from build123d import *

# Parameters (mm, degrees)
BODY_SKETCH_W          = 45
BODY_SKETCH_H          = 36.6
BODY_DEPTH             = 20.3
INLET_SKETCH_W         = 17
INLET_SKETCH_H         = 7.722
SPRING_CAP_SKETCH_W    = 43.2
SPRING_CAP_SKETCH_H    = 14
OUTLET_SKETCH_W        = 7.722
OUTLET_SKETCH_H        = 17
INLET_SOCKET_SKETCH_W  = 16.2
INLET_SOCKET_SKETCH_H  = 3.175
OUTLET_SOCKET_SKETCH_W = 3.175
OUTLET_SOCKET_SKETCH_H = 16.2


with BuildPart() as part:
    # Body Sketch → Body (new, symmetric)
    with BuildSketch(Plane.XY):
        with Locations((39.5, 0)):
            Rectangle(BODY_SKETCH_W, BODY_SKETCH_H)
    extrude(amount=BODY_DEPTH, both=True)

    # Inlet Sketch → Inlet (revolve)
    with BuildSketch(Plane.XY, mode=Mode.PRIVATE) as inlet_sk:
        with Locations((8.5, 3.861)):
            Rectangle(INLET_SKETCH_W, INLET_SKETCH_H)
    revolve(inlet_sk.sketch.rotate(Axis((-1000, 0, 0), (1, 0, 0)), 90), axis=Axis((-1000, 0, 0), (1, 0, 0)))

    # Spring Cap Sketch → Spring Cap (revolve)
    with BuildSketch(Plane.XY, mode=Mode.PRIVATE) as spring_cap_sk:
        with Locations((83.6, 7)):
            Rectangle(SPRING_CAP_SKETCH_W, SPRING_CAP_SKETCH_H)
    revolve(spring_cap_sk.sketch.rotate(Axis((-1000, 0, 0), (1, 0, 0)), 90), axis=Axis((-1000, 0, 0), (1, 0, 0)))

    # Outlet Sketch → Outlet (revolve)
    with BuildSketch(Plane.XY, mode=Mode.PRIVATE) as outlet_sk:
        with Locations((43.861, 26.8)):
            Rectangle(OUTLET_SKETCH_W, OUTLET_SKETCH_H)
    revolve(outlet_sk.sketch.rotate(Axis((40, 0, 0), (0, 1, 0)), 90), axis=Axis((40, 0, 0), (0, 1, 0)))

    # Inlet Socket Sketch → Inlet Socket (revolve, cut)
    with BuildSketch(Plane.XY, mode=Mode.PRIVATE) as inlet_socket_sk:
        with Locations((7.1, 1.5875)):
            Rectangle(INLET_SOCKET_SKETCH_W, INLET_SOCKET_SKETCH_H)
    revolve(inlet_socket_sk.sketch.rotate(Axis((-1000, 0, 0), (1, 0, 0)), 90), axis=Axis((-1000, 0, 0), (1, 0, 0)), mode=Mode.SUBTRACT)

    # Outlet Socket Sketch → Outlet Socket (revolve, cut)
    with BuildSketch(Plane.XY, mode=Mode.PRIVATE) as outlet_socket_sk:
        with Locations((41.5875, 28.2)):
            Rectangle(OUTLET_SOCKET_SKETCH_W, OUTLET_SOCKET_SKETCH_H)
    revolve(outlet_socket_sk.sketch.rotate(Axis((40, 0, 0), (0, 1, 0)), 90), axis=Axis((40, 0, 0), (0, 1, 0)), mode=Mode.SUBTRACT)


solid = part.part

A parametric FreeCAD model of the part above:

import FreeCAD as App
import Part
import Sketcher

V = App.Vector
Q = App.Units.Quantity


def add_polygon(sketch, points):
    """Adds a closed chain of lines whose ends are joined by coincident constraints."""
    first, n = sketch.GeometryCount, len(points)
    for a, b in zip(points, points[1:] + points[:1]):
        sketch.addGeometry(Part.LineSegment(App.Vector(*a, 0), App.Vector(*b, 0)), False)
    for i in range(n):
        sketch.addConstraint(Sketcher.Constraint("Coincident", first + i, 2, first + (i + 1) % n, 1))

doc = App.newDocument("Part")
body = doc.addObject("PartDesign::Body", "Body")

# Sketch on XY plane
sketch1 = body.newObject("Sketcher::SketchObject", "Sketch")
sketch1.AttachmentSupport = (doc.getObject("XY_Plane"), [""])
sketch1.MapMode = "FlatFace"
add_polygon(sketch1, [(17, 18.3), (17, -18.3), (62, -18.3), (62, 18.3)])  # lines 0-3
sketch1.addConstraint(Sketcher.Constraint("Vertical", 0))
sketch1.addConstraint(Sketcher.Constraint("Horizontal", 1))
sketch1.addConstraint(Sketcher.Constraint("Vertical", 2))
sketch1.addConstraint(Sketcher.Constraint("Horizontal", 3))
sketch1.addConstraint(Sketcher.Constraint("DistanceX", 1, 1, 1, 2, Q("45 mm")))
sketch1.addConstraint(Sketcher.Constraint("DistanceY", 0, 2, 0, 1, Q("36.6 mm")))
sketch1.addConstraint(Sketcher.Constraint("DistanceX", -1, 1, 0, 2, Q("17 mm")))
sketch1.addConstraint(Sketcher.Constraint("DistanceY", 0, 2, -1, 1, Q("18.3 mm")))
pad1 = body.newObject("PartDesign::Pad", "Pad")
pad1.Profile = sketch1
pad1.Length = 40.6
pad1.Midplane = True

# Sketch on XY plane
sketch2 = body.newObject("Sketcher::SketchObject", "Sketch001")
sketch2.AttachmentSupport = (doc.getObject("XY_Plane"), [""])
sketch2.MapMode = "FlatFace"
add_polygon(sketch2, [(0, 7.722), (0, 0), (17, 0), (17, 7.722)])  # lines 0-3
sketch2.addConstraint(Sketcher.Constraint("Vertical", 0))
sketch2.addConstraint(Sketcher.Constraint("Horizontal", 1))
sketch2.addConstraint(Sketcher.Constraint("Vertical", 2))
sketch2.addConstraint(Sketcher.Constraint("Horizontal", 3))
sketch2.addConstraint(Sketcher.Constraint("Coincident", 0, 2, -1, 1))
sketch2.addConstraint(Sketcher.Constraint("DistanceX", 1, 1, 1, 2, Q("17 mm")))
sketch2.addConstraint(Sketcher.Constraint("DistanceY", 0, 2, 0, 1, Q("7.722 mm")))
revolution = body.newObject("PartDesign::Revolution", "Revolution")
revolution.Profile = sketch2
revolution.ReferenceAxis = (sketch2, ["H_Axis"])
revolution.Angle = 360

# Sketch on XY plane
sketch3 = body.newObject("Sketcher::SketchObject", "Sketch002")
sketch3.AttachmentSupport = (doc.getObject("XY_Plane"), [""])
sketch3.MapMode = "FlatFace"
add_polygon(sketch3, [(62, 14), (62, 0), (105.2, 0), (105.2, 14)])  # lines 0-3
sketch3.addConstraint(Sketcher.Constraint("Vertical", 0))
sketch3.addConstraint(Sketcher.Constraint("Horizontal", 1))
sketch3.addConstraint(Sketcher.Constraint("Vertical", 2))
sketch3.addConstraint(Sketcher.Constraint("Horizontal", 3))
sketch3.addConstraint(Sketcher.Constraint("PointOnObject", 0, 2, -1))
sketch3.addConstraint(Sketcher.Constraint("DistanceY", 0, 2, 0, 1, Q("14 mm")))
sketch3.addConstraint(Sketcher.Constraint("DistanceX", 1, 1, 1, 2, Q("43.2 mm")))
sketch3.addConstraint(Sketcher.Constraint("DistanceX", -1, 1, 0, 2, Q("62 mm")))
revolution2 = body.newObject("PartDesign::Revolution", "Revolution001")
revolution2.Profile = sketch3
revolution2.ReferenceAxis = (sketch3, ["H_Axis"])
revolution2.Angle = 360

# Sketch on XY plane
sketch4 = body.newObject("Sketcher::SketchObject", "Sketch003")
sketch4.AttachmentSupport = (doc.getObject("XY_Plane"), [""])
sketch4.MapMode = "FlatFace"
add_polygon(sketch4, [(40, 35.3), (40, 18.3), (47.722, 18.3), (47.722, 35.3)])  # lines 0-3
sketch4.addGeometry(Part.LineSegment(V(40, 18.3, 0), V(40, 35.3, 0)), True)  # axis
sketch4.addConstraint(Sketcher.Constraint("Vertical", 0))
sketch4.addConstraint(Sketcher.Constraint("Horizontal", 1))
sketch4.addConstraint(Sketcher.Constraint("Vertical", 2))
sketch4.addConstraint(Sketcher.Constraint("Horizontal", 3))
sketch4.addConstraint(Sketcher.Constraint("Vertical", 4))
sketch4.addConstraint(Sketcher.Constraint("Coincident", 4, 1, 0, 2))
sketch4.addConstraint(Sketcher.Constraint("Horizontal", 2, 2, 4, 2))
sketch4.addConstraint(Sketcher.Constraint("DistanceY", 0, 2, 0, 1, Q("17 mm")))
sketch4.addConstraint(Sketcher.Constraint("DistanceX", -1, 1, 0, 2, Q("40 mm")))
sketch4.addConstraint(Sketcher.Constraint("DistanceY", -1, 1, 0, 2, Q("18.3 mm")))
sketch4.addConstraint(Sketcher.Constraint("DistanceX", 1, 1, 1, 2, Q("7.722 mm")))
revolution3 = body.newObject("PartDesign::Revolution", "Revolution002")
revolution3.Profile = sketch4
revolution3.ReferenceAxis = (sketch4, ["Axis0"])
revolution3.Angle = 360

# Sketch on XY plane
sketch5 = body.newObject("Sketcher::SketchObject", "Sketch004")
sketch5.AttachmentSupport = (doc.getObject("XY_Plane"), [""])
sketch5.MapMode = "FlatFace"
add_polygon(sketch5, [(-1, 3.175), (-1, 0), (15.2, 0), (15.2, 3.175)])  # lines 0-3
sketch5.addConstraint(Sketcher.Constraint("Vertical", 0))
sketch5.addConstraint(Sketcher.Constraint("Horizontal", 1))
sketch5.addConstraint(Sketcher.Constraint("Vertical", 2))
sketch5.addConstraint(Sketcher.Constraint("Horizontal", 3))
sketch5.addConstraint(Sketcher.Constraint("PointOnObject", 0, 2, -1))
sketch5.addConstraint(Sketcher.Constraint("DistanceX", 1, 1, 1, 2, Q("16.2 mm")))
sketch5.addConstraint(Sketcher.Constraint("DistanceX", 0, 2, -1, 1, Q("1 mm")))
sketch5.addConstraint(Sketcher.Constraint("DistanceY", 0, 2, 0, 1, Q("3.175 mm")))
groove = body.newObject("PartDesign::Groove", "Groove")
groove.Profile = sketch5
groove.ReferenceAxis = (sketch5, ["H_Axis"])
groove.Angle = 360

# Sketch on XY plane
sketch6 = body.newObject("Sketcher::SketchObject", "Sketch005")
sketch6.AttachmentSupport = (doc.getObject("XY_Plane"), [""])
sketch6.MapMode = "FlatFace"
add_polygon(sketch6, [(40, 36.3), (40, 20.1), (43.175, 20.1), (43.175, 36.3)])  # lines 0-3
sketch6.addGeometry(Part.LineSegment(V(40, 20.1, 0), V(40, 36.3, 0)), True)  # axis
sketch6.addConstraint(Sketcher.Constraint("Vertical", 0))
sketch6.addConstraint(Sketcher.Constraint("Horizontal", 1))
sketch6.addConstraint(Sketcher.Constraint("Vertical", 2))
sketch6.addConstraint(Sketcher.Constraint("Horizontal", 3))
sketch6.addConstraint(Sketcher.Constraint("Vertical", 4))
sketch6.addConstraint(Sketcher.Constraint("Coincident", 4, 1, 0, 2))
sketch6.addConstraint(Sketcher.Constraint("Horizontal", 2, 2, 4, 2))
sketch6.addConstraint(Sketcher.Constraint("DistanceY", 0, 2, 0, 1, Q("16.2 mm")))
sketch6.addConstraint(Sketcher.Constraint("DistanceX", -1, 1, 0, 2, Q("40 mm")))
sketch6.addConstraint(Sketcher.Constraint("DistanceY", -1, 1, 0, 2, Q("20.1 mm")))
sketch6.addConstraint(Sketcher.Constraint("DistanceX", 1, 1, 1, 2, Q("3.175 mm")))
groove2 = body.newObject("PartDesign::Groove", "Groove001")
groove2.Profile = sketch6
groove2.ReferenceAxis = (sketch6, ["Axis0"])
groove2.Angle = 360

doc.recompute()
